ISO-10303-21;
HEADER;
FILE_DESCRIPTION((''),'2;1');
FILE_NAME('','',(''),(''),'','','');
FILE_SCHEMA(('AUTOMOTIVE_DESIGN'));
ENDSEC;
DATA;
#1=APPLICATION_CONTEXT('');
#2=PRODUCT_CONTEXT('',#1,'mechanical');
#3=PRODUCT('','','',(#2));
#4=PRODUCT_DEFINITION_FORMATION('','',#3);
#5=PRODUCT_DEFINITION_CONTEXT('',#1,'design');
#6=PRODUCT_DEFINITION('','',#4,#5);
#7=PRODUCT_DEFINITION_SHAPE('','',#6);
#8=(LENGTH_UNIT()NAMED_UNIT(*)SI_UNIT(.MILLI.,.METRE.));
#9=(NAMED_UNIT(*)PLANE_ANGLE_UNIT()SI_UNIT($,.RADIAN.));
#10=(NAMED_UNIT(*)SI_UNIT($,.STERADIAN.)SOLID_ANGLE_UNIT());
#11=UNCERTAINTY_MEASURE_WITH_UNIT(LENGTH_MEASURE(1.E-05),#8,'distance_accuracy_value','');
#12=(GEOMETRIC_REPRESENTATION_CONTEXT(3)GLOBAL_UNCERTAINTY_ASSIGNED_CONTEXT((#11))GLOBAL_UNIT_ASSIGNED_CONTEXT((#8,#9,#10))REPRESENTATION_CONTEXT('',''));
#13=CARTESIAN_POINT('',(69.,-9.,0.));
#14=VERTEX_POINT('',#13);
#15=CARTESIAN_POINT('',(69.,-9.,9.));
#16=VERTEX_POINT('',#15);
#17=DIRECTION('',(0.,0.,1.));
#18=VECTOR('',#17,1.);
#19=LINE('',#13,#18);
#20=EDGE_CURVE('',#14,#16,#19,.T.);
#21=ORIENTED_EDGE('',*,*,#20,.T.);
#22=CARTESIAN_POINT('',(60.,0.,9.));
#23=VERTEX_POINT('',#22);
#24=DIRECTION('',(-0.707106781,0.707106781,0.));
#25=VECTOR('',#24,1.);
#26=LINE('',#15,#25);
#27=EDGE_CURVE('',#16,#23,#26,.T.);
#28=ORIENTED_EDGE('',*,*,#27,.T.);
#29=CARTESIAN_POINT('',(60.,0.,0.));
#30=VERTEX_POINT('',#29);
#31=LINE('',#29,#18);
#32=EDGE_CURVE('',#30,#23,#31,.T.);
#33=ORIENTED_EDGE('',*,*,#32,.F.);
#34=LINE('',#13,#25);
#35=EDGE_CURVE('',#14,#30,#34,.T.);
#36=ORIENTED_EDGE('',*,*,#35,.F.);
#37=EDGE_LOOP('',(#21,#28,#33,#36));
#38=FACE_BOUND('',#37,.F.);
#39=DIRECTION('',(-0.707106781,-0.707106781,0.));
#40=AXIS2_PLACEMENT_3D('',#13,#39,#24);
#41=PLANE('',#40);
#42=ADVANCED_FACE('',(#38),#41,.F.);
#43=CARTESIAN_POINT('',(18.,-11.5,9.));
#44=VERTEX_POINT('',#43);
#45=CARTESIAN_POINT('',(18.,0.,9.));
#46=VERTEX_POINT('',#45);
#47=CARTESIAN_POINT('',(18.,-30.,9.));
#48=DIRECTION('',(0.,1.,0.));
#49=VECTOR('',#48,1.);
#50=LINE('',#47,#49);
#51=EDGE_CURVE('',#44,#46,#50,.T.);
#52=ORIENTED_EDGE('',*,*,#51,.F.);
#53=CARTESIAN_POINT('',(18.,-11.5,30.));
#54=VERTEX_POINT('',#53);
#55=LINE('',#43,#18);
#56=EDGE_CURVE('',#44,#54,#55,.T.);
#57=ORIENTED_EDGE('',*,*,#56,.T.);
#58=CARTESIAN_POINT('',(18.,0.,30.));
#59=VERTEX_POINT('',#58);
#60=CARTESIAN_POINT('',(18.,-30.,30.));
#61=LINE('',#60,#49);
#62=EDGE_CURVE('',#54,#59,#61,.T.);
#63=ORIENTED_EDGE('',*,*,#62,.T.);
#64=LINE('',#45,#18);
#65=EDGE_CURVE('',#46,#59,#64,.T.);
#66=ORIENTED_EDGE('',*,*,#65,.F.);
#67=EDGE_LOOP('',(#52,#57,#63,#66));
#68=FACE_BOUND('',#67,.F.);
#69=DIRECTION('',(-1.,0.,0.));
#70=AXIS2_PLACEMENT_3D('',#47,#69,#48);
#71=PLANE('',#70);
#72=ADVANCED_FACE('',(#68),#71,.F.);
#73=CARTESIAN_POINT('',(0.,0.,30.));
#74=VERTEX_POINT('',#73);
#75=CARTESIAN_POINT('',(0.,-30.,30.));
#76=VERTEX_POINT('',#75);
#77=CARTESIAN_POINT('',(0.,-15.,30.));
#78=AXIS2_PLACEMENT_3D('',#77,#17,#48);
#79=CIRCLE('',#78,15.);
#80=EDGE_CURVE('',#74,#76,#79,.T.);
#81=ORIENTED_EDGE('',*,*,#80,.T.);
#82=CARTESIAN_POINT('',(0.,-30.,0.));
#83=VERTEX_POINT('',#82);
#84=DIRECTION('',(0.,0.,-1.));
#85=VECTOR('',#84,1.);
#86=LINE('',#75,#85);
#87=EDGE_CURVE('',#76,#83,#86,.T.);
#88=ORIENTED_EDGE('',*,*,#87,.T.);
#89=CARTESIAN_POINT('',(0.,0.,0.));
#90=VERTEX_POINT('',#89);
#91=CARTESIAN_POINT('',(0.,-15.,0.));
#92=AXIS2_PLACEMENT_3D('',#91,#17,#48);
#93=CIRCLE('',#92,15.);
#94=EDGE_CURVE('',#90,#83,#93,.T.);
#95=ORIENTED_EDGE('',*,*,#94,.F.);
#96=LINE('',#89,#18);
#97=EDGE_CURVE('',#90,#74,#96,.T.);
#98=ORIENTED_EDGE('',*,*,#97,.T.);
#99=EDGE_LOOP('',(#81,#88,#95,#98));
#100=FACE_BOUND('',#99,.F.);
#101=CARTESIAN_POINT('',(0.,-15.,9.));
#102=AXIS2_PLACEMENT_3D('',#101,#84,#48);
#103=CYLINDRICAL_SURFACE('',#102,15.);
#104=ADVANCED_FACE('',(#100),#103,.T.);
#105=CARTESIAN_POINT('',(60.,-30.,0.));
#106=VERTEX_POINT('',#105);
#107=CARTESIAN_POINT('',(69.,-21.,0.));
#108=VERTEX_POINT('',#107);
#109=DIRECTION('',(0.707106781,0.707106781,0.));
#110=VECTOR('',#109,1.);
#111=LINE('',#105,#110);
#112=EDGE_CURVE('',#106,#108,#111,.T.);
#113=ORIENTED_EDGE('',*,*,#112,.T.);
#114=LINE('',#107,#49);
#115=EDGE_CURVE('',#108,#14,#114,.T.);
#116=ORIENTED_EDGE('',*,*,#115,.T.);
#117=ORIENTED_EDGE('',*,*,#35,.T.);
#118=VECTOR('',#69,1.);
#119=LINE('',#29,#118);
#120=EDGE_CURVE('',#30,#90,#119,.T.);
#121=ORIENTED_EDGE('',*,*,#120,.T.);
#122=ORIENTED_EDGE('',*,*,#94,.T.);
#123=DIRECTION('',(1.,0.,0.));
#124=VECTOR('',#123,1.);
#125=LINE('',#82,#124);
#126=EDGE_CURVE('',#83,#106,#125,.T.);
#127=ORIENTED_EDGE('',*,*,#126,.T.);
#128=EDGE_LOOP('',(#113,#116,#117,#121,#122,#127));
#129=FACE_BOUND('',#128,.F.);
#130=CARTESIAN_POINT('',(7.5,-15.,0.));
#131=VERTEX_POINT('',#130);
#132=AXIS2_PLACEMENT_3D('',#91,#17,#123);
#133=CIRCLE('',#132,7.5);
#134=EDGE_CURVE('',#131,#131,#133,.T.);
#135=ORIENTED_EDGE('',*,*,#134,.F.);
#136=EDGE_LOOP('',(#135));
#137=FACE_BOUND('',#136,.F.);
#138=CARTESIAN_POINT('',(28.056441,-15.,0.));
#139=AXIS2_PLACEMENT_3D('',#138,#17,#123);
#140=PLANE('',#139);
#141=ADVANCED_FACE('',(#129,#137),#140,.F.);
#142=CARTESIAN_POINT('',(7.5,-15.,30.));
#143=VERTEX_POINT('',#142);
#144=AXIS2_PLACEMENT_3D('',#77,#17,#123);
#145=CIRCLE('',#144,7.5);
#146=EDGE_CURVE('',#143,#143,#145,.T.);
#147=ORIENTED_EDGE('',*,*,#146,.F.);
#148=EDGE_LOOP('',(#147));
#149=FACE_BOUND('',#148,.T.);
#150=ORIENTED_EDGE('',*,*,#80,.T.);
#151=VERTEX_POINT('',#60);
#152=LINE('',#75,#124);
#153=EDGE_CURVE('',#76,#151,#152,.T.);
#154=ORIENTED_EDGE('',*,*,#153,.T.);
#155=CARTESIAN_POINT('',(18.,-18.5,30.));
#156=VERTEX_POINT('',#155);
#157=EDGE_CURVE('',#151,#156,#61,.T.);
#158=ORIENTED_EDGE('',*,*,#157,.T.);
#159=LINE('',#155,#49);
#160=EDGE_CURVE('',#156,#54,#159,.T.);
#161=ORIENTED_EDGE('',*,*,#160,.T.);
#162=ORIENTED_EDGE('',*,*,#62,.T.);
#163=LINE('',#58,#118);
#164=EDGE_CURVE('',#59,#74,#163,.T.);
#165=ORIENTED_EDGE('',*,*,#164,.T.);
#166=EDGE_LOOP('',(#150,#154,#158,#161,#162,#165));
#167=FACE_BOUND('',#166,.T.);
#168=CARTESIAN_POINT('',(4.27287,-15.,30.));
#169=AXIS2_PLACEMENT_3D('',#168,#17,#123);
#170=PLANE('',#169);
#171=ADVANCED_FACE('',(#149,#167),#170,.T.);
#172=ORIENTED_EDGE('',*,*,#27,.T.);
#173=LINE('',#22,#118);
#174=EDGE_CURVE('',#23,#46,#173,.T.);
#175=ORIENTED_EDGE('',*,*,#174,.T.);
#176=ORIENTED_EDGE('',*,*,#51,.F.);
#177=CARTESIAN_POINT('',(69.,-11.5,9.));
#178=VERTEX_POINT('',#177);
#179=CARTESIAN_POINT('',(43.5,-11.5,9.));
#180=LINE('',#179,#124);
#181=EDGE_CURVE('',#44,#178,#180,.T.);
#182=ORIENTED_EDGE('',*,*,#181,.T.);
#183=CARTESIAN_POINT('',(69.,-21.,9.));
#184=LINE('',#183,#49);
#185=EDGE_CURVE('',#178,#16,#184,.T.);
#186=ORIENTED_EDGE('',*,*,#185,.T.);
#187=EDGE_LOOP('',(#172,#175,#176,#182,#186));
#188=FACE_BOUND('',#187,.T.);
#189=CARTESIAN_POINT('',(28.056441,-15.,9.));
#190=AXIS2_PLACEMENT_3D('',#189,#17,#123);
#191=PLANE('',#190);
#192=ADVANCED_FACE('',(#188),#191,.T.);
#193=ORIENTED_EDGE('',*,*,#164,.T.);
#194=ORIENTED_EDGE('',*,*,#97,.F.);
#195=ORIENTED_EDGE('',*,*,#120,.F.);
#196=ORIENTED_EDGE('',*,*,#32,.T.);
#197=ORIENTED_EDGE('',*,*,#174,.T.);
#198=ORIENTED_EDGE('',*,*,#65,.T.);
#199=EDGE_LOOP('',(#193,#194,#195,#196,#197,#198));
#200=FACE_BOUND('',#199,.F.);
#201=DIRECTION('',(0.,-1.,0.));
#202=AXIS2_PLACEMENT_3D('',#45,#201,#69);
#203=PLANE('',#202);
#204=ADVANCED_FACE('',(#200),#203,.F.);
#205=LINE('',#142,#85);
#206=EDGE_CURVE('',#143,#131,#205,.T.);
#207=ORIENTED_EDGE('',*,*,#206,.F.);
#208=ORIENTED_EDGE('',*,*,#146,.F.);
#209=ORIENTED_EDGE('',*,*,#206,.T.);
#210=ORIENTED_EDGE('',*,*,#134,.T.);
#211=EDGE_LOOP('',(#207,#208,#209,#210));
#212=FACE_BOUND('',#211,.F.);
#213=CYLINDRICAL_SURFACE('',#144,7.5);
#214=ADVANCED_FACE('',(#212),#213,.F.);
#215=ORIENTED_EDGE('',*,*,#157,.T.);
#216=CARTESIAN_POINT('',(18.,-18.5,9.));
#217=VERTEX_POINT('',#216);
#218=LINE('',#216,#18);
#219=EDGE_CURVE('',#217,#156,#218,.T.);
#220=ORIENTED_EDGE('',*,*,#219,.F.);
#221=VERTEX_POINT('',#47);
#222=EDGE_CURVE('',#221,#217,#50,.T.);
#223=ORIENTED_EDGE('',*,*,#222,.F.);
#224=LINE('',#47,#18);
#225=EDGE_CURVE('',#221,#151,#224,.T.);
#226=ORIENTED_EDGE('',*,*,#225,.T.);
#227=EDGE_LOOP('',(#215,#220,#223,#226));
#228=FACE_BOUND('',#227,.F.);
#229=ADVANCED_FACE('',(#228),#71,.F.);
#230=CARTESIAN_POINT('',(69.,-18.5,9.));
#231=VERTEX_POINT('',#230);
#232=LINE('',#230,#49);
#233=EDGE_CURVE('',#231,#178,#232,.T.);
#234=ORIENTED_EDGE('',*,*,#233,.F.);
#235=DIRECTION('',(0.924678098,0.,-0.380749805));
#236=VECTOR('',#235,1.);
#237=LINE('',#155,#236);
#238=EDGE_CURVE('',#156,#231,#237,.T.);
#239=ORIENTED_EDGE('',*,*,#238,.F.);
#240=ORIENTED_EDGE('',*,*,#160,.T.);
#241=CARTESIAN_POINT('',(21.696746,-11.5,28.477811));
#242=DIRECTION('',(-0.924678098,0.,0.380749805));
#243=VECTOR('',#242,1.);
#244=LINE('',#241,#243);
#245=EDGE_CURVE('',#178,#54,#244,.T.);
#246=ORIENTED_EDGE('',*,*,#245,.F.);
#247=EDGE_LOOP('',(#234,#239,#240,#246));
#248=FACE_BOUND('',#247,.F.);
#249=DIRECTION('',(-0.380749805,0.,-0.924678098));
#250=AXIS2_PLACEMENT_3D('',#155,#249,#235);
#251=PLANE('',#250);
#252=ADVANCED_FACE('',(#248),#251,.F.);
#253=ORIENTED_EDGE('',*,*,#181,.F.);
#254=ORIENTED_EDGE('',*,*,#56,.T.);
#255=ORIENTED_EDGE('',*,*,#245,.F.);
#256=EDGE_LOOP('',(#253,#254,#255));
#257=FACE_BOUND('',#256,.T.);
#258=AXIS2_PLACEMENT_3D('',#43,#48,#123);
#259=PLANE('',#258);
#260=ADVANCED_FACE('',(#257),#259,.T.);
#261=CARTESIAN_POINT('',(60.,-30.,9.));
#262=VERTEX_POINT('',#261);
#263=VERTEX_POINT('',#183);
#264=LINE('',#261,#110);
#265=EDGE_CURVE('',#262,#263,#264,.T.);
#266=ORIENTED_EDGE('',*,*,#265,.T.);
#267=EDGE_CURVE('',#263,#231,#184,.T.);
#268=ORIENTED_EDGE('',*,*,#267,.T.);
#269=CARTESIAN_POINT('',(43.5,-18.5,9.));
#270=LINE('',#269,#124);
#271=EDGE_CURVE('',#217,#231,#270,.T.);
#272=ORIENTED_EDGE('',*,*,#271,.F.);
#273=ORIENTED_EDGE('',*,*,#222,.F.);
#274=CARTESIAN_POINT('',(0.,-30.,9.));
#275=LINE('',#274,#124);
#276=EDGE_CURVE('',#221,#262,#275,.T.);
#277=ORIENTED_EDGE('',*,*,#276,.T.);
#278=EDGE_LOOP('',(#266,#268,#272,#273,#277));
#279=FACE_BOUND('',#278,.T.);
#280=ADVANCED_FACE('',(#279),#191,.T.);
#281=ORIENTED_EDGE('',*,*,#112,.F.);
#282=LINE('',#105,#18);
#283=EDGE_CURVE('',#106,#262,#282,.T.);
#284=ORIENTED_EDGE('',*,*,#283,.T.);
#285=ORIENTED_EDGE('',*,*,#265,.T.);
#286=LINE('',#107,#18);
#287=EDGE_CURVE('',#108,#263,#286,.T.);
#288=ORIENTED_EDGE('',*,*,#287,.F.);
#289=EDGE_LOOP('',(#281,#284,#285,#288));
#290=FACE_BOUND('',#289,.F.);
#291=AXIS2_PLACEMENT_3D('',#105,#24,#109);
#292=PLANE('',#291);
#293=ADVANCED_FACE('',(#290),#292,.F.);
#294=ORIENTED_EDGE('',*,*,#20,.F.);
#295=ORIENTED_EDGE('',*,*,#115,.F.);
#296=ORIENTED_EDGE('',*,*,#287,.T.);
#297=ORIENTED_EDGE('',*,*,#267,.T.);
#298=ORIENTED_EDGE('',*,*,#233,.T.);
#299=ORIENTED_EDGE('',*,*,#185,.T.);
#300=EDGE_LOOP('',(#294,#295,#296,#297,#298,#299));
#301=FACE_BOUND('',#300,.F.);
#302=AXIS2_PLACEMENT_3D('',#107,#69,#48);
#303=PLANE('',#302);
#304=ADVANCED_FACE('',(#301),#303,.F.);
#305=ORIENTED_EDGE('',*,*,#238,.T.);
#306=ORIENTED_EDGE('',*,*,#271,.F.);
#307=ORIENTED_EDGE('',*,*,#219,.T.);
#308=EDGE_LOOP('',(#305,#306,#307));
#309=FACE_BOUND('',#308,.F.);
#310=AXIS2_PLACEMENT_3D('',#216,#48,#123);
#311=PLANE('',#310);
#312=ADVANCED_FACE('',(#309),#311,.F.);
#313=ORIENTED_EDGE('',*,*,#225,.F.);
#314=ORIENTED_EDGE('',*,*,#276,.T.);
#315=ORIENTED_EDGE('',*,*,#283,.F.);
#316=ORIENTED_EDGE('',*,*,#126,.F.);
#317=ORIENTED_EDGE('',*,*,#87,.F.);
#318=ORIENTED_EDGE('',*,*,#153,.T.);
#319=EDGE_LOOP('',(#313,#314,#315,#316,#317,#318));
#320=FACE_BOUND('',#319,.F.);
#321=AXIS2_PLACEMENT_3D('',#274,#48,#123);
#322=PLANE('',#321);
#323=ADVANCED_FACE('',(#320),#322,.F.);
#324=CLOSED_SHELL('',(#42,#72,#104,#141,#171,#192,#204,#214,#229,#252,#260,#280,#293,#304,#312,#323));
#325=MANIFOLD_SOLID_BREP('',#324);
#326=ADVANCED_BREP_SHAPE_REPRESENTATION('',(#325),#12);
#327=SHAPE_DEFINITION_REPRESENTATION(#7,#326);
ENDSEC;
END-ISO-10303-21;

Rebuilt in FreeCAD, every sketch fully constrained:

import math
import FreeCAD as App
import Part
import Sketcher
Q = App.Units.Quantity

doc = App.newDocument("Part")
params = doc.addObject("Spreadsheet::Sheet", "Params")
for row, (alias, value) in enumerate([
    ("sketch1_radius", "15 mm"),
    ("sketch1_width", "60 mm"),
    ("sketch1_height", "12 mm"),
    ("pad1_length", "9 mm"),
    ("sketch2_radius", "15 mm"),
    ("sketch2_width", "18 mm"),
    ("pad2_length", "21 mm"),
    ("sketch3_diameter", "15 mm"),
    ("pocket1_length", "30 mm"),
    ("sketch4_width", "51 mm"),
    ("sketch4_height", "7 mm"),
    ("pad3_length", "21 mm"),
    ("sketch5_width", "51 mm"),
    ("sketch5_height", "21 mm"),
    ("pocket2_length", "25 mm"),
], start=1):
    params.set(f"A{row}", alias)
    params.set(f"B{row}", "=" + value)
    params.setAlias(f"B{row}", alias)

body = doc.addObject("PartDesign::Body", "Body")

# Sketch on XY plane
sketch1 = body.newObject("Sketcher::SketchObject", "Sketch")
sketch1.AttachmentSupport = (doc.getObject("XY_Plane"), [""])
sketch1.MapMode = "FlatFace"
sketch1.addGeometry([
    Part.LineSegment(App.Vector(60, 0, 0), App.Vector(0, 0, 0)),  # 0
    Part.ArcOfCircle(Part.Circle(App.Vector(0, -15, 0), App.Vector(0, 0, 1), 15), math.radians(90), math.radians(270)),  # 1
    Part.LineSegment(App.Vector(0, -30, 0), App.Vector(60, -30, 0)),  # 2
    Part.LineSegment(App.Vector(60, -30, 0), App.Vector(69, -21, 0)),  # 3
    Part.LineSegment(App.Vector(69, -21, 0), App.Vector(69, -9, 0)),  # 4
    Part.LineSegment(App.Vector(69, -9, 0), App.Vector(60, 0, 0)),  # 5
], False)
sketch1.addConstraint([
    Sketcher.Constraint("Tangent", 0, 2, 1, 1),
    Sketcher.Constraint("Tangent", 1, 2, 2, 1),
    Sketcher.Constraint("Coincident", 2, 2, 3, 1),
    Sketcher.Constraint("Coincident", 3, 2, 4, 1),
    Sketcher.Constraint("Coincident", 4, 2, 5, 1),
    Sketcher.Constraint("Coincident", 5, 2, 0, 1),
    Sketcher.Constraint("Horizontal", 0),
    Sketcher.Constraint("Horizontal", 2),
    Sketcher.Constraint("Vertical", 4),
    Sketcher.Constraint("Coincident", 0, 2, -1, 1),
    Sketcher.Constraint("Perpendicular", 3, 5),
    Sketcher.Constraint("Vertical", 2, 2, 5, 2),
    Sketcher.Constraint("Equal", 3, 5),
    Sketcher.Constraint("Radius", 1, Q("15 mm")),
    Sketcher.Constraint("DistanceX", 0, 2, 0, 1, Q("60 mm")),
    Sketcher.Constraint("DistanceY", 4, 1, 4, 2, Q("12 mm")),
])
sketch1.setExpression("Constraints[13]", "Params.sketch1_radius")
sketch1.setExpression("Constraints[14]", "Params.sketch1_width")
sketch1.setExpression("Constraints[15]", "Params.sketch1_height")
pad1 = body.newObject("PartDesign::Pad", "Pad")
pad1.Profile = sketch1
pad1.setExpression("Length", "Params.pad1_length")

# Sketch on XY plane
sketch2 = body.newObject("Sketcher::SketchObject", "Sketch001")
sketch2.AttachmentSupport = (doc.getObject("XY_Plane"), [""])
sketch2.MapMode = "FlatFace"
sketch2.AttachmentOffset = App.Placement(App.Vector(0, 0, 9), App.Rotation())
sketch2.addGeometry([
    Part.LineSegment(App.Vector(18, -30, 0), App.Vector(18, 0, 0)),
    Part.LineSegment(App.Vector(18, 0, 0), App.Vector(0, 0, 0)),
    Part.ArcOfCircle(Part.Circle(App.Vector(0, -15, 0), App.Vector(0, 0, 1), 15), math.radians(90), math.radians(270)),
    Part.LineSegment(App.Vector(0, -30, 0), App.Vector(18, -30, 0)),
], False)
sketch2.addConstraint([
    Sketcher.Constraint("Coincident", 0, 2, 1, 1),
    Sketcher.Constraint("Tangent", 1, 2, 2, 1),
    Sketcher.Constraint("Tangent", 2, 2, 3, 1),
    Sketcher.Constraint("Coincident", 3, 2, 0, 1),
    Sketcher.Constraint("Vertical", 0),
    Sketcher.Constraint("Horizontal", 1),
    Sketcher.Constraint("Horizontal", 3),
    Sketcher.Constraint("Coincident", 1, 2, -1, 1),
    Sketcher.Constraint("Radius", 2, Q("15 mm")),
    Sketcher.Constraint("DistanceX", 1, 2, 1, 1, Q("18 mm")),
])
sketch2.setExpression("Constraints[8]", "Params.sketch2_radius")
sketch2.setExpression("Constraints[9]", "Params.sketch2_width")
pad2 = body.newObject("PartDesign::Pad", "Pad001")
pad2.Profile = sketch2
pad2.setExpression("Length", "Params.pad2_length")

# Sketch on XY plane
sketch3 = body.newObject("Sketcher::SketchObject", "Sketch002")
sketch3.AttachmentSupport = (doc.getObject("XY_Plane"), [""])
sketch3.MapMode = "FlatFace"
sketch3.AttachmentOffset = App.Placement(App.Vector(0, 0, 30), App.Rotation())
sketch3.addGeometry(Part.Circle(App.Vector(0, -15, 0), App.Vector(0, 0, 1), 8), False)
sketch3.addConstraint([
    Sketcher.Constraint("PointOnObject", 0, 3, -2),
    Sketcher.Constraint("Diameter", 0, Q("15 mm")),
    Sketcher.Constraint("DistanceY", 0, 3, -1, 1, Q("15 mm")),
])
sketch3.setExpression("Constraints[1]", "Params.sketch3_diameter")
pocket1 = body.newObject("PartDesign::Pocket", "Pocket")
pocket1.Profile = sketch3
pocket1.setExpression("Length", "Params.pocket1_length")

# Sketch on XY plane
sketch4 = body.newObject("Sketcher::SketchObject", "Sketch003")
sketch4.AttachmentSupport = (doc.getObject("XY_Plane"), [""])
sketch4.MapMode = "FlatFace"
sketch4.AttachmentOffset = App.Placement(App.Vector(0, 0, 9), App.Rotation())
sketch4.addGeometry([
    Part.LineSegment(App.Vector(18, -12, 0), App.Vector(18, -18, 0)),
    Part.LineSegment(App.Vector(18, -18, 0), App.Vector(69, -18, 0)),
    Part.LineSegment(App.Vector(69, -18, 0), App.Vector(69, -12, 0)),
    Part.LineSegment(App.Vector(69, -12, 0), App.Vector(18, -12, 0)),
], False)
sketch4.addConstraint([
    Sketcher.Constraint("Coincident", 0, 2, 1, 1),
    Sketcher.Constraint("Coincident", 1, 2, 2, 1),
    Sketcher.Constraint("Coincident", 2, 2, 3, 1),
    Sketcher.Constraint("Coincident", 3, 2, 0, 1),
    Sketcher.Constraint("Vertical", 0),
    Sketcher.Constraint("Horizontal", 1),
    Sketcher.Constraint("Vertical", 2),
    Sketcher.Constraint("Horizontal", 3),
    Sketcher.Constraint("DistanceX", 1, 1, 1, 2, Q("51 mm")),
    Sketcher.Constraint("DistanceY", 0, 2, 0, 1, Q("7 mm")),
    Sketcher.Constraint("DistanceX", -1, 1, 0, 2, Q("18 mm")),
    Sketcher.Constraint("DistanceY", 0, 2, -1, 1, Q("18.5 mm")),
])
sketch4.setExpression("Constraints[8]", "Params.sketch4_width")
sketch4.setExpression("Constraints[9]", "Params.sketch4_height")
pad3 = body.newObject("PartDesign::Pad", "Pad002")
pad3.Profile = sketch4
pad3.setExpression("Length", "Params.pad3_length")

# Sketch on XZ plane
sketch5 = body.newObject("Sketcher::SketchObject", "Sketch004")
sketch5.AttachmentSupport = (doc.getObject("XZ_Plane"), [""])
sketch5.MapMode = "FlatFace"
sketch5.AttachmentOffset = App.Placement(App.Vector(0, 0, 18.5), App.Rotation())
sketch5.addGeometry([
    Part.LineSegment(App.Vector(69, 30, 0), App.Vector(18, 30, 0)),
    Part.LineSegment(App.Vector(18, 30, 0), App.Vector(69, 9, 0)),
    Part.LineSegment(App.Vector(69, 9, 0), App.Vector(69, 30, 0)),
], False)
sketch5.addConstraint([
    Sketcher.Constraint("Coincident", 0, 2, 1, 1),
    Sketcher.Constraint("Coincident", 1, 2, 2, 1),
    Sketcher.Constraint("Coincident", 2, 2, 0, 1),
    Sketcher.Constraint("Horizontal", 0),
    Sketcher.Constraint("Vertical", 2),
    Sketcher.Constraint("DistanceX", 0, 2, 0, 1, Q("51 mm")),
    Sketcher.Constraint("DistanceY", 2, 1, 2, 2, Q("21 mm")),
    Sketcher.Constraint("DistanceX", -1, 1, 0, 2, Q("18 mm")),
    Sketcher.Constraint("DistanceY", -1, 1, 0, 2, Q("30 mm")),
])
sketch5.setExpression("Constraints[5]", "Params.sketch5_width")
sketch5.setExpression("Constraints[6]", "Params.sketch5_height")
pocket2 = body.newObject("PartDesign::Pocket", "Pocket001")
pocket2.Profile = sketch5
pocket2.setExpression("Length", "Params.pocket2_length")

doc.recompute()
